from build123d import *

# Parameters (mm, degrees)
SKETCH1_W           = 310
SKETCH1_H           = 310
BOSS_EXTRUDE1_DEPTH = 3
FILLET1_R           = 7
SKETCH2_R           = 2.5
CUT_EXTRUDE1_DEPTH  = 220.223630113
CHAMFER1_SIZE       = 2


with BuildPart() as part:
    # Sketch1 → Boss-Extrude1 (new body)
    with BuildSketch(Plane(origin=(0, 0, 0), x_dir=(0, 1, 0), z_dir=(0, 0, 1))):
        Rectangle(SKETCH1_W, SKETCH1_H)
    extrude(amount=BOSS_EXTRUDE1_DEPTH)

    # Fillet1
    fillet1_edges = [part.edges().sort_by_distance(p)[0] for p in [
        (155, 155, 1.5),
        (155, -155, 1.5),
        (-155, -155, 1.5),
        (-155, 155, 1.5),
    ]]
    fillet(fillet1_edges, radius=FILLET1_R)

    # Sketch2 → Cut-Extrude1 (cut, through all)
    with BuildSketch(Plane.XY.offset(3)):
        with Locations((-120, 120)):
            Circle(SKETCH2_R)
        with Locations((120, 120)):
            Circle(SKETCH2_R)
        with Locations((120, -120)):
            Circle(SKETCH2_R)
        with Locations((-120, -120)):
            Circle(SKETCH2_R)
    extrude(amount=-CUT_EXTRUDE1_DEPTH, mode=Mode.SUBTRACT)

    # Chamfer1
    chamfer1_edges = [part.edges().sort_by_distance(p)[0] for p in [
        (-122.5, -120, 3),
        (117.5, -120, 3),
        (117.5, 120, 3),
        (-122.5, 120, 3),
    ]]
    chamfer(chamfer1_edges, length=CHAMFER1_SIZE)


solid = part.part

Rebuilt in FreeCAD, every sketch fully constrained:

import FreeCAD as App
import Part
import Sketcher

V = App.Vector
Q = App.Units.Quantity


def edges_at(feature, points):
    """Names of the edges that pass closest to the given points."""
    edges = feature.Shape.Edges
    near = lambda p: min(range(len(edges)), key=lambda i: edges[i].distToShape(Part.Vertex(*p))[0])
    return sorted({f"Edge{near(p) + 1}" for p in points})

doc = App.newDocument("Part")
params = doc.addObject("Spreadsheet::Sheet", "Params")
for row, (alias, value) in enumerate([
    ("sketch1_width", "310 mm"),
    ("pad1_length", "3 mm"),
    ("fillet_radius", "7 mm"),
    ("sketch2_diameter", "5 mm"),
    ("chamfer_size", "2 mm"),
], start=1):
    params.set(f"A{row}", alias)
    params.set(f"B{row}", "=" + value)
    params.setAlias(f"B{row}", alias)

body = doc.addObject("PartDesign::Body", "Body")

sketch1 = doc.addObject("Sketcher::SketchObject", "Sketch")
body.addObject(sketch1)
sketch1.AttachmentSupport = (doc.XY_Plane, [""])
sketch1.MapMode = "FlatFace"
sketch1.addGeometry([
    Part.LineSegment(V(-155, -155, 0), V(155, -155, 0)),
    Part.LineSegment(V(155, -155, 0), V(155, 155, 0)),
    Part.LineSegment(V(155, 155, 0), V(-155, 155, 0)),
    Part.LineSegment(V(-155, 155, 0), V(-155, -155, 0)),
], False)
sketch1.addConstraint([
    Sketcher.Constraint("Coincident", 0, 2, 1, 1),
    Sketcher.Constraint("Coincident", 1, 2, 2, 1),
    Sketcher.Constraint("Coincident", 2, 2, 3, 1),
    Sketcher.Constraint("Coincident", 3, 2, 0, 1),
    Sketcher.Constraint("Horizontal", 0),
    Sketcher.Constraint("Vertical", 1),
    Sketcher.Constraint("Horizontal", 2),
    Sketcher.Constraint("Vertical", 3),
    Sketcher.Constraint("Symmetric", 0, 2, 2, 2, -1, 1),
    Sketcher.Constraint("Equal", 2, 1),
    Sketcher.Constraint("DistanceX", 0, 1, 0, 2, Q("310 mm")),
])
sketch1.setExpression("Constraints[10]", "Params.sketch1_width")
pad1 = doc.addObject("PartDesign::Pad", "Pad")
body.addObject(pad1)
pad1.Profile = sketch1
pad1.setExpression("Length", "Params.pad1_length")
doc.recompute()

fillet = doc.addObject("PartDesign::Fillet", "Fillet")
body.addObject(fillet)
fillet.Base = (pad1, edges_at(pad1, [
    (155, 155, 1.5),
    (155, -155, 1.5),
    (-155, -155, 1.5),
    (-155, 155, 1.5),
]))
fillet.setExpression("Radius", "Params.fillet_radius")

sketch2 = doc.addObject("Sketcher::SketchObject", "Sketch001")
body.addObject(sketch2)
sketch2.AttachmentSupport = (doc.XY_Plane, [""])
sketch2.MapMode = "FlatFace"
sketch2.AttachmentOffset = App.Placement(V(0, 0, 3), App.Rotation())
sketch2.addGeometry([
    Part.Circle(V(-120, 120, 0), V(0, 0, 1), 2.5),
    Part.Circle(V(120, 120, 0), V(0, 0, 1), 2.5),
    Part.Circle(V(120, -120, 0), V(0, 0, 1), 2.5),
    Part.Circle(V(-120, -120, 0), V(0, 0, 1), 2.5),
], False)
sketch2.addConstraint([
    Sketcher.Constraint("Equal", 0, 1),
    Sketcher.Constraint("Equal", 1, 2),
    Sketcher.Constraint("Equal", 2, 3),
    Sketcher.Constraint("Symmetric", 0, 3, 2, 3, -1, 1),
    Sketcher.Constraint("Symmetric", 1, 3, 3, 3, -1, 1),
    Sketcher.Constraint("Symmetric", 0, 3, 1, 3, -2),
    Sketcher.Constraint("Diameter", 0, Q("5 mm")),
    Sketcher.Constraint("DistanceX", 0, 3, -1, 1, Q("120 mm")),
    Sketcher.Constraint("DistanceY", -1, 1, 0, 3, Q("120 mm")),
])
sketch2.setExpression("Constraints[6]", "Params.sketch2_diameter")
pocket1 = doc.addObject("PartDesign::Pocket", "Pocket")
body.addObject(pocket1)
pocket1.Profile = sketch2
pocket1.Type = "ThroughAll"
doc.recompute()

chamfer = doc.addObject("PartDesign::Chamfer", "Chamfer")
body.addObject(chamfer)
chamfer.Base = (pocket1, edges_at(pocket1, [
    (-122.5, -120, 3),
    (117.5, -120, 3),
    (117.5, 120, 3),
    (-122.5, 120, 3),
]))
chamfer.setExpression("Size", "Params.chamfer_size")

doc.recompute()
